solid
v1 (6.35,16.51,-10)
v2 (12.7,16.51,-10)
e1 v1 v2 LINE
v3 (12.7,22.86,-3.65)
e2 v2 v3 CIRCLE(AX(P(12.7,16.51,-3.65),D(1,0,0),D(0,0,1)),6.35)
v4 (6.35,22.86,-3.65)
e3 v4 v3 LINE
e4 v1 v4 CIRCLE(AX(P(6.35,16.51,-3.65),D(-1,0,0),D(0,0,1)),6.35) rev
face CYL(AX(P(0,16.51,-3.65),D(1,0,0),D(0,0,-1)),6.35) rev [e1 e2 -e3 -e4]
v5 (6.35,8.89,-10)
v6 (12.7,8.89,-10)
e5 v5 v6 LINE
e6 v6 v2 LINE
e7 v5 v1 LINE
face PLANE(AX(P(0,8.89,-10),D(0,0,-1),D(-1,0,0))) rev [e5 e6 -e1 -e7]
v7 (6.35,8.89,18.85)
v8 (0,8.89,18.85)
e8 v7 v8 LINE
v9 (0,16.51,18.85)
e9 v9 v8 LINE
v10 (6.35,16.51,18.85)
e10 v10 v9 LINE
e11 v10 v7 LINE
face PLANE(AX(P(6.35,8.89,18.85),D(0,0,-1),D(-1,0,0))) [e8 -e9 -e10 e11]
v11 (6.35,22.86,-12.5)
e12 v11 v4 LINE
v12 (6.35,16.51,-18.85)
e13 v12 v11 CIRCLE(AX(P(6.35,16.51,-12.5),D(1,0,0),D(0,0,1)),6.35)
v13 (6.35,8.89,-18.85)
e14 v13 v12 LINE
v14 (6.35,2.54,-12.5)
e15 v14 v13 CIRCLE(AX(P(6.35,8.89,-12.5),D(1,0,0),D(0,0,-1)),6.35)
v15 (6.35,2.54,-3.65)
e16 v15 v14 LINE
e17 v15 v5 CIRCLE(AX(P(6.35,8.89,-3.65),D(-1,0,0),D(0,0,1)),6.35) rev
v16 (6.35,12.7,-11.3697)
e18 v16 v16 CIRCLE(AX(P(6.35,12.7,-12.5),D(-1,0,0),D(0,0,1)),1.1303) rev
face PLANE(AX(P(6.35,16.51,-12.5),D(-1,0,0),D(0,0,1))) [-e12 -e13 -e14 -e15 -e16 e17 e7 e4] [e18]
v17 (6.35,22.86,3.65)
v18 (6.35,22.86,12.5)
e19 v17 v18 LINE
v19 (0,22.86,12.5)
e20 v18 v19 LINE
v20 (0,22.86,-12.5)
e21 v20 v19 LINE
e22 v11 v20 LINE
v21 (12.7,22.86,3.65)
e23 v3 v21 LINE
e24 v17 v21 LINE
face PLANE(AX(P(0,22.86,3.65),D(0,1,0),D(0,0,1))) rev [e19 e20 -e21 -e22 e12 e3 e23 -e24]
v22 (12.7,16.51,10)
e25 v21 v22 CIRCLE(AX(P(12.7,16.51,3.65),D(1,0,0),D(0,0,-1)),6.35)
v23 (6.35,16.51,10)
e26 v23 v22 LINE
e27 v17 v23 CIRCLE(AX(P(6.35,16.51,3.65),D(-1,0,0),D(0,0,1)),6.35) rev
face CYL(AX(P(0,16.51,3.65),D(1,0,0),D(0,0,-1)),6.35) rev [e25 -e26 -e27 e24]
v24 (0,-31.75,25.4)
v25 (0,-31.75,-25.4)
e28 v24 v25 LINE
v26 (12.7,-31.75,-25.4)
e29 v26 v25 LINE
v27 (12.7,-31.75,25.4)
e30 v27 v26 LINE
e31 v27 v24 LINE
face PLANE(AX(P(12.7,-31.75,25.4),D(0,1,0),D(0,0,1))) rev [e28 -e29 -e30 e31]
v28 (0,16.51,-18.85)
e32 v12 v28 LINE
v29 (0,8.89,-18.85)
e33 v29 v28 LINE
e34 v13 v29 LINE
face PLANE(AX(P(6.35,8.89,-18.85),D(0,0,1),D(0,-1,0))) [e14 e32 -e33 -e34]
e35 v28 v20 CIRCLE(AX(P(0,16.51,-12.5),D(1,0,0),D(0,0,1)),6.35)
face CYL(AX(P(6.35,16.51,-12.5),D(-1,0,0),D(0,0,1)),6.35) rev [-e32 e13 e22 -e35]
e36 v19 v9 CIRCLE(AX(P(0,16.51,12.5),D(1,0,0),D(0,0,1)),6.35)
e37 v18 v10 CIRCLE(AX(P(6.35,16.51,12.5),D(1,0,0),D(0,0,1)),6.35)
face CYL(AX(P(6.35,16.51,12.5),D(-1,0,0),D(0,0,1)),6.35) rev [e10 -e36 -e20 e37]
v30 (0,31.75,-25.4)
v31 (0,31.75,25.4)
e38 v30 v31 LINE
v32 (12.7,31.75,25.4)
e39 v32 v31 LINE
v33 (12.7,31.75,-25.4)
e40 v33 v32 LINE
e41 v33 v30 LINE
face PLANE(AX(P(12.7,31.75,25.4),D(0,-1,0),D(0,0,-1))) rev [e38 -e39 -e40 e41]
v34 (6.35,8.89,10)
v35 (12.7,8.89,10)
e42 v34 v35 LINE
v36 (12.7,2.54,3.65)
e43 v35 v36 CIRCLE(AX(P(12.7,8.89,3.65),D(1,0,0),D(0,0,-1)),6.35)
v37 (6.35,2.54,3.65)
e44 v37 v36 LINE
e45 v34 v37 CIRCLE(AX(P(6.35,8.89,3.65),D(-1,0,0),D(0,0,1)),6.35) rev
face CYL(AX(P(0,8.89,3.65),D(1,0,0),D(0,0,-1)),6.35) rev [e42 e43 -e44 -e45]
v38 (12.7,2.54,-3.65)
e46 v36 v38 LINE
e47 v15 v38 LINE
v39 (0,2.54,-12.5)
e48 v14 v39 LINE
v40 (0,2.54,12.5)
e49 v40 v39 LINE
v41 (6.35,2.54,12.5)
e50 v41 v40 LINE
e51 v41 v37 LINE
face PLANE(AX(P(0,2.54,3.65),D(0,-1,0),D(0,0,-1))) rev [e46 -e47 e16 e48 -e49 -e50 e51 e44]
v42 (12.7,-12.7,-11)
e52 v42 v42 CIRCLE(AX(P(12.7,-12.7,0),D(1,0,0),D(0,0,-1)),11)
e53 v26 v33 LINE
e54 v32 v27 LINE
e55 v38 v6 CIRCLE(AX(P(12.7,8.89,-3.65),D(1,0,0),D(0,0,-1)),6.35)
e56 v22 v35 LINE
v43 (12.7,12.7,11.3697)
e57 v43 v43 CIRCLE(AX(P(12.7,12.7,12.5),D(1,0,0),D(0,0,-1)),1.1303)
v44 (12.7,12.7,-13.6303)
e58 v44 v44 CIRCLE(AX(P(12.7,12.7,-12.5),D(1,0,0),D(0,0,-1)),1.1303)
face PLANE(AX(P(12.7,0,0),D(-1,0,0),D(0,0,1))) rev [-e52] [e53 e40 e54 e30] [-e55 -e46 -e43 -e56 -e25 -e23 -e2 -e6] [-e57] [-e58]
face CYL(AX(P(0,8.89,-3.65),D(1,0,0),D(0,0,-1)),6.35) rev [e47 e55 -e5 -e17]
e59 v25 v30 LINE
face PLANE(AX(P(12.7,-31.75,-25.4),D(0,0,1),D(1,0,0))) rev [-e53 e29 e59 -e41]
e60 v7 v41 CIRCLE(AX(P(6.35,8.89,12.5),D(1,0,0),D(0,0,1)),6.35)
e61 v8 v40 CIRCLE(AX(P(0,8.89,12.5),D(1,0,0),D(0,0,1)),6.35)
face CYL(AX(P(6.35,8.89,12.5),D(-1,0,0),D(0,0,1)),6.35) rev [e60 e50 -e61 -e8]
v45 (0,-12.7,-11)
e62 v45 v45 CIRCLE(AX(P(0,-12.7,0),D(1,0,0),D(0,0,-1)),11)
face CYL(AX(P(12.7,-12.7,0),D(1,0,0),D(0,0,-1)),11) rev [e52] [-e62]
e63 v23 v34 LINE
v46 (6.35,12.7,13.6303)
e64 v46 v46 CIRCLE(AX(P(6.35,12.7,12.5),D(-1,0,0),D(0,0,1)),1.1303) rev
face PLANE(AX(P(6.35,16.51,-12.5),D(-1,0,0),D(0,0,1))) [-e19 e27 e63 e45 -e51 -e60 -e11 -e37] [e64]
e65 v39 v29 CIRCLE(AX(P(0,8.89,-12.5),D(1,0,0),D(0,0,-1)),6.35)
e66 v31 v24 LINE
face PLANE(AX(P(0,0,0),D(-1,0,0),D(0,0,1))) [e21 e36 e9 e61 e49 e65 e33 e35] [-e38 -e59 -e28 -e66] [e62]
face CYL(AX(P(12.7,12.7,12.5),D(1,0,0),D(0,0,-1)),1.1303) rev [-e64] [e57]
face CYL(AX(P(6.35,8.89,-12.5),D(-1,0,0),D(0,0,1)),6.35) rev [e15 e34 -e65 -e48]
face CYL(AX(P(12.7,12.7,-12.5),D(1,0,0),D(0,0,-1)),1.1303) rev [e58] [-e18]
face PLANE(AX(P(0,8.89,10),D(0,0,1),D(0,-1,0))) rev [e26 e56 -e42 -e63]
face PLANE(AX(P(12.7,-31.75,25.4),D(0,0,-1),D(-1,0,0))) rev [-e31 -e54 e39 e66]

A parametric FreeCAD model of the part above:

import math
import FreeCAD as App
import Part
import Sketcher
from FreeCAD import Vector
Q = App.Units.Quantity


def add_polygon(sketch, points):
    """Adds a closed chain of lines whose ends are joined by coincident constraints."""
    first, n = sketch.GeometryCount, len(points)
    for a, b in zip(points, points[1:] + points[:1]):
        sketch.addGeometry(Part.LineSegment(App.Vector(*a, 0), App.Vector(*b, 0)), False)
    for i in range(n):
        sketch.addConstraint(Sketcher.Constraint("Coincident", first + i, 2, first + (i + 1) % n, 1))

doc = App.newDocument("Part")
body = doc.addObject("PartDesign::Body", "Body")

sketch1 = body.newObject("Sketcher::SketchObject", "Sketch")
sketch1.AttachmentSupport = (doc.getObject("YZ_Plane"), [""])
sketch1.MapMode = "FlatFace"
add_polygon(sketch1, [(32, 25), (-32, 25), (-32, -25), (32, -25)])
sketch1.addConstraint(Sketcher.Constraint("Horizontal", 0))
sketch1.addConstraint(Sketcher.Constraint("Vertical", 1))
sketch1.addConstraint(Sketcher.Constraint("Horizontal", 2))
sketch1.addConstraint(Sketcher.Constraint("Vertical", 3))
sketch1.addConstraint(Sketcher.Constraint("Symmetric", 0, 2, 2, 2, -1, 1))
sketch1.addConstraint(Sketcher.Constraint("DistanceY", 1, 2, 1, 1, Q("2 in")))
sketch1.addConstraint(Sketcher.Constraint("DistanceX", 0, 2, 0, 1, Q("2.5 in")))
pad1 = body.newObject("PartDesign::Pad", "Pad")
pad1.Profile = sketch1
pad1.Length = Q("0.5 in")

sketch2 = body.newObject("Sketcher::SketchObject", "Sketch001")
sketch2.AttachmentSupport = (doc.getObject("YZ_Plane"), [""])
sketch2.MapMode = "FlatFace"
sketch2.AttachmentOffset = App.Placement(Vector(0, 0, 0.5 * 25.4), App.Rotation())
sketch2.addGeometry(Part.Circle(Vector(-13, 0, 0), Vector(0, 0, 1), 11), False)
sketch2.addConstraint(Sketcher.Constraint("PointOnObject", 0, 3, -1))
sketch2.addConstraint(Sketcher.Constraint("DistanceX", 0, 3, -1, 1, Q("0.5 in")))
sketch2.addConstraint(Sketcher.Constraint("Diameter", 0, Q("22 mm")))
doc.recompute()
hole = body.newObject("PartDesign::Hole", "Hole")
hole.Profile = sketch2
hole.ThreadType = "None"
hole.Diameter = 22
hole.DepthType = "ThroughAll"

sketch3 = body.newObject("Sketcher::SketchObject", "Sketch002")
sketch3.AttachmentSupport = (doc.getObject("XZ_Plane"), [""])
sketch3.MapMode = "FlatFace"
sketch3.AttachmentOffset = App.Placement(Vector(0, 0, -0.5 * 25.4), App.Rotation())
add_polygon(sketch3, [(13.5, 0), (0, 0), (0, 4), (6.9, 3.8), (6.9, 3.1), (11.7, 3.1)])
sketch3.addConstraint(Sketcher.Constraint("Horizontal", 0))
sketch3.addConstraint(Sketcher.Constraint("Vertical", 1))
sketch3.addConstraint(Sketcher.Constraint("Vertical", 3))
sketch3.addConstraint(Sketcher.Constraint("Horizontal", 4))
sketch3.addConstraint(Sketcher.Constraint("Coincident", 0, 2, -1, 1))
sketch3.addConstraint(Sketcher.Constraint("Angle", 5, Q("-59 deg")))
sketch3.addConstraint(Sketcher.Constraint("DistanceX", 4, 1, 4, 2, Q("0.19 in")))
sketch3.addConstraint(Sketcher.Constraint("DistanceX", -1, 1, 2, 2, Q("0.27 in")))
sketch3.addConstraint(Sketcher.Constraint("DistanceY", -1, 1, 3, 2, Q("0.121 in")))
sketch3.addConstraint(Sketcher.Constraint("DistanceY", 1, 1, 1, 2, Q("3.967912 mm")))
sketch3.addConstraint(Sketcher.Constraint("DistanceY", 3, 2, 3, 1, Q("0.689174 mm")))
groove = body.newObject("PartDesign::Groove", "Groove")
groove.Profile = sketch3
groove.ReferenceAxis = (sketch3, ["H_Axis"])
groove.Angle = 360

sketch4 = body.newObject("Sketcher::SketchObject", "Sketch003")
sketch4.AttachmentSupport = (doc.getObject("YZ_Plane"), [""])
sketch4.MapMode = "FlatFace"
sketch4.AttachmentOffset = App.Placement(Vector(0, 0, 0.5 * 25.4), App.Rotation())
sketch4.addGeometry(Part.Circle(Vector(12.7, 12.5, 0), Vector(0, 0, 1), 1.1), False)
sketch4.addGeometry(Part.Circle(Vector(12.7, -12.5, 0), Vector(0, 0, 1), 1.1), False)
sketch4.addConstraint(Sketcher.Constraint("Equal", 0, 1))
sketch4.addConstraint(Sketcher.Constraint("Symmetric", 0, 3, 1, 3, -1))
sketch4.addConstraint(Sketcher.Constraint("Diameter", 0, Q("0.089 in")))
sketch4.addConstraint(Sketcher.Constraint("DistanceX", -1, 1, 0, 3, Q("0.5 in")))
sketch4.addConstraint(Sketcher.Constraint("DistanceY", -1, 1, 0, 3, Q("12.5 mm")))
doc.recompute()
hole2 = body.newObject("PartDesign::Hole", "Hole001")
hole2.Profile = sketch4
hole2.ThreadType = "None"
hole2.Diameter = Q("0.089 in")
hole2.DepthType = "ThroughAll"

sketch5 = body.newObject("Sketcher::SketchObject", "Sketch004")
sketch5.AttachmentSupport = (doc.getObject("YZ_Plane"), [""])
sketch5.MapMode = "FlatFace"
sketch5.AttachmentOffset = App.Placement(Vector(0, 0, 0.5 * 25.4), App.Rotation())
sketch5.addGeometry(Part.LineSegment(Vector(3, 4, 0), Vector(3, -4, 0)), False)
sketch5.addGeometry(Part.ArcOfCircle(Part.Circle(Vector(9, -4, 0), Vector(0, 0, 1), 6), math.radians(180), math.radians(270)), False)
sketch5.addGeometry(Part.LineSegment(Vector(9, -10, 0), Vector(17, -10, 0)), False)
sketch5.addGeometry(Part.ArcOfCircle(Part.Circle(Vector(17, -4, 0), Vector(0, 0, 1), 6), math.radians(-90), math.radians(0)), False)
sketch5.addGeometry(Part.LineSegment(Vector(23, -4, 0), Vector(23, 4, 0)), False)
sketch5.addGeometry(Part.ArcOfCircle(Part.Circle(Vector(17, 4, 0), Vector(0, 0, 1), 6), math.radians(0), math.radians(90)), False)
sketch5.addGeometry(Part.LineSegment(Vector(17, 10, 0), Vector(9, 10, 0)), False)
sketch5.addGeometry(Part.ArcOfCircle(Part.Circle(Vector(9, 4, 0), Vector(0, 0, 1), 6), math.radians(90), math.radians(180)), False)
sketch5.addConstraint(Sketcher.Constraint("Tangent", 0, 2, 1, 1))
sketch5.addConstraint(Sketcher.Constraint("Tangent", 1, 2, 2, 1))
sketch5.addConstraint(Sketcher.Constraint("Tangent", 2, 2, 3, 1))
sketch5.addConstraint(Sketcher.Constraint("Tangent", 3, 2, 4, 1))
sketch5.addConstraint(Sketcher.Constraint("Tangent", 4, 2, 5, 1))
sketch5.addConstraint(Sketcher.Constraint("Tangent", 5, 2, 6, 1))
sketch5.addConstraint(Sketcher.Constraint("Tangent", 6, 2, 7, 1))
sketch5.addConstraint(Sketcher.Constraint("Tangent", 7, 2, 0, 1))
sketch5.addConstraint(Sketcher.Constraint("Vertical", 0))
sketch5.addConstraint(Sketcher.Constraint("Horizontal", 2))
sketch5.addConstraint(Sketcher.Constraint("Vertical", 4))
sketch5.addConstraint(Sketcher.Constraint("Horizontal", 6))
sketch5.addConstraint(Sketcher.Constraint("Equal", 1, 3))
sketch5.addConstraint(Sketcher.Constraint("Equal", 3, 5))
sketch5.addConstraint(Sketcher.Constraint("Equal", 5, 7))
sketch5.addConstraint(Sketcher.Constraint("Radius", 1, Q("0.25 in")))
sketch5.addConstraint(Sketcher.Constraint("DistanceX", 2, 1, 2, 2, Q("0.3 in")))
sketch5.addConstraint(Sketcher.Constraint("DistanceX", -1, 1, 0, 2, Q("0.1 in")))
sketch5.addConstraint(Sketcher.Constraint("DistanceY", 0, 2, 0, 1, Q("7.3 mm")))
sketch5.addConstraint(Sketcher.Constraint("DistanceY", 1, 3, -1, 1, Q("3.65 mm")))
pocket1 = body.newObject("PartDesign::Pocket", "Pocket")
pocket1.Profile = sketch5
pocket1.Type = "ThroughAll"

sketch6 = body.newObject("Sketcher::SketchObject", "Sketch005")
sketch6.AttachmentSupport = (doc.getObject("YZ_Plane"), [""])
sketch6.MapMode = "FlatFace"
sketch6.addGeometry(Part.LineSegment(Vector(3, 12, 0), Vector(3, -12, 0)), False)
sketch6.addGeometry(Part.ArcOfCircle(Part.Circle(Vector(9, -13, 0), Vector(0, 0, 1), 6), math.radians(180), math.radians(270)), False)
sketch6.addGeometry(Part.LineSegment(Vector(9, -19, 0), Vector(17, -19, 0)), False)
sketch6.addGeometry(Part.ArcOfCircle(Part.Circle(Vector(17, -13, 0), Vector(0, 0, 1), 6), math.radians(-90), math.radians(0)), False)
sketch6.addGeometry(Part.LineSegment(Vector(23, -12, 0), Vector(23, 12, 0)), False)
sketch6.addGeometry(Part.ArcOfCircle(Part.Circle(Vector(17, 13, 0), Vector(0, 0, 1), 6), math.radians(0), math.radians(90)), False)
sketch6.addGeometry(Part.LineSegment(Vector(17, 19, 0), Vector(9, 19, 0)), False)
sketch6.addGeometry(Part.ArcOfCircle(Part.Circle(Vector(9, 13, 0), Vector(0, 0, 1), 6), math.radians(90), math.radians(180)), False)
sketch6.addConstraint(Sketcher.Constraint("Tangent", 0, 2, 1, 1))
sketch6.addConstraint(Sketcher.Constraint("Tangent", 1, 2, 2, 1))
sketch6.addConstraint(Sketcher.Constraint("Tangent", 2, 2, 3, 1))
sketch6.addConstraint(Sketcher.Constraint("Tangent", 3, 2, 4, 1))
sketch6.addConstraint(Sketcher.Constraint("Tangent", 4, 2, 5, 1))
sketch6.addConstraint(Sketcher.Constraint("Tangent", 5, 2, 6, 1))
sketch6.addConstraint(Sketcher.Constraint("Tangent", 6, 2, 7, 1))
sketch6.addConstraint(Sketcher.Constraint("Tangent", 7, 2, 0, 1))
sketch6.addConstraint(Sketcher.Constraint("Vertical", 0))
sketch6.addConstraint(Sketcher.Constraint("Horizontal", 2))
sketch6.addConstraint(Sketcher.Constraint("Vertical", 4))
sketch6.addConstraint(Sketcher.Constraint("Horizontal", 6))
sketch6.addConstraint(Sketcher.Constraint("Equal", 1, 3))
sketch6.addConstraint(Sketcher.Constraint("Equal", 3, 5))
sketch6.addConstraint(Sketcher.Constraint("Equal", 5, 7))
sketch6.addConstraint(Sketcher.Constraint("Radius", 1, Q("0.25 in")))
sketch6.addConstraint(Sketcher.Constraint("DistanceX", 2, 1, 2, 2, Q("0.3 in")))
sketch6.addConstraint(Sketcher.Constraint("DistanceX", -1, 1, 0, 2, Q("0.1 in")))
sketch6.addConstraint(Sketcher.Constraint("DistanceY", 0, 2, 0, 1, Q("25 mm")))
sketch6.addConstraint(Sketcher.Constraint("DistanceY", 1, 3, -1, 1, Q("12.5 mm")))
pocket2 = body.newObject("PartDesign::Pocket", "Pocket001")
pocket2.Profile = sketch6
pocket2.Length = Q("0.25 in")
pocket2.Reversed = True

doc.recompute()
